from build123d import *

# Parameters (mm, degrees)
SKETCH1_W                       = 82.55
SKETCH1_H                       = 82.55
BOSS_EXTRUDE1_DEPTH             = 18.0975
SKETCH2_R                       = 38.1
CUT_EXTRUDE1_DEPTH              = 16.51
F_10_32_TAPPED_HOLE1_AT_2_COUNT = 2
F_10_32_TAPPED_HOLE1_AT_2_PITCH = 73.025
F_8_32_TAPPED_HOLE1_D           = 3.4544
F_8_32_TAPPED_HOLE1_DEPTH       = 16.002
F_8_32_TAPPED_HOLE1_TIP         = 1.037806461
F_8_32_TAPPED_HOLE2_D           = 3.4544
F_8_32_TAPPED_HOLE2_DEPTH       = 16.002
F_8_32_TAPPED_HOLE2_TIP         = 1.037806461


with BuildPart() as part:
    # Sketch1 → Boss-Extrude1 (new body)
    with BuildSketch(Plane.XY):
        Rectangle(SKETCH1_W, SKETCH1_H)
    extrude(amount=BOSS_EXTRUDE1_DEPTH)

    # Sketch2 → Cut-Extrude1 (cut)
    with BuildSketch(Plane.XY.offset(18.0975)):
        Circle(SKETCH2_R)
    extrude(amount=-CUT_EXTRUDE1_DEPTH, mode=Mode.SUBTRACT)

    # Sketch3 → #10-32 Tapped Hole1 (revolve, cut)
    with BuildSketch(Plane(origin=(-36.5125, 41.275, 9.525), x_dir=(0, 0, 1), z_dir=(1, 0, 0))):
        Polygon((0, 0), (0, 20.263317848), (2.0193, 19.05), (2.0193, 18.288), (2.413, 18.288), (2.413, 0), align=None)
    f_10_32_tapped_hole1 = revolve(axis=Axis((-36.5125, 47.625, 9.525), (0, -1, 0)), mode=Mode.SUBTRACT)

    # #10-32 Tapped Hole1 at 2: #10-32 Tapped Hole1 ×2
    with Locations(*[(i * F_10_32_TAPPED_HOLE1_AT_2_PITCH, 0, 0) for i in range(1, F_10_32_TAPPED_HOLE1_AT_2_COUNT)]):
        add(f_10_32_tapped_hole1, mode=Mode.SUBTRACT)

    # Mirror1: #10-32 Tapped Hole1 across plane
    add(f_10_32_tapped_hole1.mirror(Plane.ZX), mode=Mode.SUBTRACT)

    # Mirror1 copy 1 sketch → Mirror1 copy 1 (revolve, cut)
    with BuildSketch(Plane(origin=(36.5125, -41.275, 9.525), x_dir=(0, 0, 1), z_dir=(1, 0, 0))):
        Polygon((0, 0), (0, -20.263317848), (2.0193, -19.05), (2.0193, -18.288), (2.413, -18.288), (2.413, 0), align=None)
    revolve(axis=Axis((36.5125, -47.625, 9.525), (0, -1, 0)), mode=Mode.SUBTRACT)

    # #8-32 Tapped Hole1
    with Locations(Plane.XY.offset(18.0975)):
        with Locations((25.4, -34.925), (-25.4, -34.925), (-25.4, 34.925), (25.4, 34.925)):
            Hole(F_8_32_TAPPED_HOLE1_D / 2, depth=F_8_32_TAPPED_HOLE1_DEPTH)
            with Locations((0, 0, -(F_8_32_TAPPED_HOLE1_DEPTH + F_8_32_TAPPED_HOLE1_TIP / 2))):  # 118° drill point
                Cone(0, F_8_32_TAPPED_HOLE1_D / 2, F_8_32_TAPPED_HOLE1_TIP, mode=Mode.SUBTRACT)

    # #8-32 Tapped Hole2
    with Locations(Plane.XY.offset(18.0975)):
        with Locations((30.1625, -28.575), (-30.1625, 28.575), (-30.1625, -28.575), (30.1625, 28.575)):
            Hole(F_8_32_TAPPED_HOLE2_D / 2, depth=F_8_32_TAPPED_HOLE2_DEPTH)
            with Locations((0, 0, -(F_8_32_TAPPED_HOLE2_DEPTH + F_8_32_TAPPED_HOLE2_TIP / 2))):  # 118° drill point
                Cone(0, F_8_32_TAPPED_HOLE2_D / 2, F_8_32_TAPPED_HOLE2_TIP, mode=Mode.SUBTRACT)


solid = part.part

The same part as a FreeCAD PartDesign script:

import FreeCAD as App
import Part
import Sketcher
Q = App.Units.Quantity


def add_polygon(sketch, points):
    """Adds a closed chain of lines whose ends are joined by coincident constraints."""
    first, n = sketch.GeometryCount, len(points)
    for a, b in zip(points, points[1:] + points[:1]):
        sketch.addGeometry(Part.LineSegment(App.Vector(*a, 0), App.Vector(*b, 0)), False)
    for i in range(n):
        sketch.addConstraint(Sketcher.Constraint("Coincident", first + i, 2, first + (i + 1) % n, 1))

doc = App.newDocument("Part")
params = doc.addObject("Spreadsheet::Sheet", "Params")
for row, (alias, value) in enumerate([
    ("sketch1_width", "3.25 in"),
    ("pad1_length", "0.7125 in"),
    ("sketch2_diameter", "3 in"),
    ("pocket1_length", "0.65 in"),
    ("sketch3_width", "0.72 in"),
    ("sketch3_width2", "0.03 in"),
    ("sketch3_height", "0.095 in"),
    ("groove_angle", "360 deg"),
    ("linearpattern_pitch", "2.875 in"),
    ("sketch4_width", "0.03 in"),
    ("sketch4_width2", "0.72 in"),
    ("sketch4_height", "0.095 in"),
    ("groove2_angle", "360 deg"),
    ("sketch5_diameter", "0.136 in"),
    ("hole_diameter", "0.136 in"),
    ("hole_depth", "0.63 in"),
    ("sketch6_diameter", "0.136 in"),
    ("hole2_diameter", "0.136 in"),
    ("hole2_depth", "0.63 in"),
], start=1):
    params.set(f"A{row}", alias)
    params.set(f"B{row}", "=" + value)
    params.setAlias(f"B{row}", alias)

body = doc.addObject("PartDesign::Body", "Body")

# Sketch on XY plane
sketch1 = doc.addObject("Sketcher::SketchObject", "Sketch")
body.addObject(sketch1)
sketch1.AttachmentSupport = (doc.XY_Plane, [""])
sketch1.MapMode = "FlatFace"
add_polygon(sketch1, [(-41, 41), (-41, -41), (41, -41), (41, 41)])  # lines 0-3
sketch1.addConstraint([
    Sketcher.Constraint("Vertical", 0),
    Sketcher.Constraint("Horizontal", 1),
    Sketcher.Constraint("Vertical", 2),
    Sketcher.Constraint("Horizontal", 3),
    Sketcher.Constraint("Symmetric", 0, 2, 2, 2, -1, 1),
    Sketcher.Constraint("Equal", 3, 0),
    Sketcher.Constraint("DistanceX", 1, 1, 1, 2, Q("3.25 in")),
])
sketch1.setExpression("Constraints[10]", "Params.sketch1_width")
pad1 = doc.addObject("PartDesign::Pad", "Pad")
body.addObject(pad1)
pad1.Profile = sketch1
pad1.setExpression("Length", "Params.pad1_length")

# Sketch on XY plane
sketch2 = doc.addObject("Sketcher::SketchObject", "Sketch001")
body.addObject(sketch2)
sketch2.AttachmentSupport = (doc.XY_Plane, [""])
sketch2.MapMode = "FlatFace"
sketch2.AttachmentOffset = App.Placement(App.Vector(0, 0, 0.7125 * 25.4), App.Rotation())
sketch2.addGeometry(Part.Circle(App.Vector(0, 0, 0), App.Vector(0, 0, 1), 38), False)
sketch2.addConstraint([
    Sketcher.Constraint("Coincident", 0, 3, -1, 1),
    Sketcher.Constraint("Diameter", 0, Q("3 in")),
])
sketch2.setExpression("Constraints[1]", "Params.sketch2_diameter")
pocket1 = doc.addObject("PartDesign::Pocket", "Pocket")
body.addObject(pocket1)
pocket1.Profile = sketch2
pocket1.setExpression("Length", "Params.pocket1_length")

# Sketch on YZ plane
sketch3 = doc.addObject("Sketcher::SketchObject", "Sketch002")
body.addObject(sketch3)
sketch3.AttachmentSupport = (doc.YZ_Plane, [""])
sketch3.MapMode = "FlatFace"
sketch3.AttachmentOffset = App.Placement(App.Vector(0, 0, -1.4375 * 25.4), App.Rotation())
add_polygon(sketch3, [(21.01, 9.53), (41.27, 9.53), (41.27, 11.94), (22.99, 11.94), (22.99, 11.54), (22.23, 11.54)])  # lines 0-5
sketch3.addGeometry(Part.LineSegment(App.Vector(41.27, 9.53, 0), App.Vector(21.01, 9.53, 0)), True)  # axis
sketch3.addConstraint([
    Sketcher.Constraint("Horizontal", 0),
    Sketcher.Constraint("Vertical", 1),
    Sketcher.Constraint("Horizontal", 2),
    Sketcher.Constraint("Vertical", 3),
    Sketcher.Constraint("Horizontal", 4),
    Sketcher.Constraint("Horizontal", 6),
    Sketcher.Constraint("Coincident", 6, 1, 0, 2),
    Sketcher.Constraint("Equal", 0, 6),
    Sketcher.Constraint("Angle", 5, Q("-121 deg")),
    Sketcher.Constraint("DistanceX", 2, 2, 2, 1, Q("0.72 in")),
    Sketcher.Constraint("DistanceX", 4, 2, 4, 1, Q("0.03 in")),
    Sketcher.Constraint("DistanceY", 1, 1, 1, 2, Q("0.095 in")),
    Sketcher.Constraint("DistanceY", -1, 1, 1, 2, Q("0.47 in")),
    Sketcher.Constraint("DistanceY", 3, 2, 3, 1, Q("0.0155 in")),
    Sketcher.Constraint("DistanceX", -1, 1, 0, 2, Q("1.625 in")),
])
sketch3.setExpression("Constraints[15]", "Params.sketch3_width")
sketch3.setExpression("Constraints[16]", "Params.sketch3_width2")
sketch3.setExpression("Constraints[17]", "Params.sketch3_height")
groove = doc.addObject("PartDesign::Groove", "Groove")
body.addObject(groove)
groove.Profile = sketch3
groove.ReferenceAxis = (sketch3, ["Axis0"])
groove.setExpression("Angle", "Params.groove_angle")
doc.recompute()

linearpattern = doc.addObject("PartDesign::LinearPattern", "LinearPattern")
body.addObject(linearpattern)
linearpattern.Originals = [groove]
linearpattern.Direction = (doc.X_Axis, [""])
linearpattern.Mode = "offset"
linearpattern.setExpression("Offset", "Params.linearpattern_pitch")
linearpattern.Occurrences = 2
body.Tip = linearpattern
doc.recompute()

mirrored = doc.addObject("PartDesign::Mirrored", "Mirrored")
body.addObject(mirrored)
mirrored.Originals = [groove]
mirrored.MirrorPlane = (doc.XZ_Plane, [""])
body.Tip = mirrored

# Sketch on YZ plane
sketch4 = doc.addObject("Sketcher::SketchObject", "Sketch003")
body.addObject(sketch4)
sketch4.AttachmentSupport = (doc.YZ_Plane, [""])
sketch4.MapMode = "FlatFace"
sketch4.AttachmentOffset = App.Placement(App.Vector(0, 0, 1.4375 * 25.4), App.Rotation())
add_polygon(sketch4, [(-41.27, 9.53), (-21.01, 9.53), (-22.23, 11.54), (-22.99, 11.54), (-22.99, 11.94), (-41.27, 11.94)])  # lines 0-5
sketch4.addGeometry(Part.LineSegment(App.Vector(-21.01, 9.53, 0), App.Vector(-41.27, 9.53, 0)), True)  # axis
sketch4.addConstraint([
    Sketcher.Constraint("Horizontal", 0),
    Sketcher.Constraint("Horizontal", 2),
    Sketcher.Constraint("Vertical", 3),
    Sketcher.Constraint("Horizontal", 4),
    Sketcher.Constraint("Vertical", 5),
    Sketcher.Constraint("Horizontal", 6),
    Sketcher.Constraint("Coincident", 6, 1, 0, 2),
    Sketcher.Constraint("Vertical", 4, 2, 6, 2),
    Sketcher.Constraint("Angle", 1, Q("121 deg")),
    Sketcher.Constraint("DistanceX", 2, 2, 2, 1, Q("0.03 in")),
    Sketcher.Constraint("DistanceX", 4, 2, 4, 1, Q("0.72 in")),
    Sketcher.Constraint("DistanceY", 5, 2, 5, 1, Q("0.095 in")),
    Sketcher.Constraint("DistanceY", -1, 1, 3, 2, Q("0.47 in")),
    Sketcher.Constraint("DistanceY", 3, 1, 3, 2, Q("0.0155 in")),
    Sketcher.Constraint("DistanceX", 1, 2, -1, 1, Q("0.875 in")),
])
sketch4.setExpression("Constraints[15]", "Params.sketch4_width")
sketch4.setExpression("Constraints[16]", "Params.sketch4_width2")
sketch4.setExpression("Constraints[17]", "Params.sketch4_height")
groove2 = doc.addObject("PartDesign::Groove", "Groove001")
body.addObject(groove2)
groove2.Profile = sketch4
groove2.ReferenceAxis = (sketch4, ["Axis0"])
groove2.setExpression("Angle", "Params.groove2_angle")

# Sketch on XY plane
sketch5 = doc.addObject("Sketcher::SketchObject", "Sketch004")
body.addObject(sketch5)
sketch5.AttachmentSupport = (doc.XY_Plane, [""])
sketch5.MapMode = "FlatFace"
sketch5.AttachmentOffset = App.Placement(App.Vector(0, 0, 0.7125 * 25.4), App.Rotation())
sketch5.addGeometry([
    Part.Circle(App.Vector(25.4, -34.9, 0), App.Vector(0, 0, 1), 1.7),
    Part.Circle(App.Vector(-25.4, -34.9, 0), App.Vector(0, 0, 1), 1.7),
    Part.Circle(App.Vector(-25.4, 34.9, 0), App.Vector(0, 0, 1), 1.7),
    Part.Circle(App.Vector(25.4, 34.9, 0), App.Vector(0, 0, 1), 1.7),
], False)
sketch5.addConstraint([
    Sketcher.Constraint("Equal", 0, 1),
    Sketcher.Constraint("Equal", 1, 2),
    Sketcher.Constraint("Equal", 2, 3),
    Sketcher.Constraint("Symmetric", 0, 3, 2, 3, -1, 1),
    Sketcher.Constraint("Symmetric", 1, 3, 3, 3, -1, 1),
    Sketcher.Constraint("Symmetric", 0, 3, 1, 3, -2),
    Sketcher.Constraint("Diameter", 0, Q("0.136 in")),
    Sketcher.Constraint("DistanceX", -1, 1, 0, 3, Q("1 in")),
    Sketcher.Constraint("DistanceY", 1, 3, 2, 3, Q("2.75 in")),
])
sketch5.setExpression("Constraints[6]", "Params.sketch5_diameter")
doc.recompute()
hole = doc.addObject("PartDesign::Hole", "Hole")
body.addObject(hole)
hole.Profile = sketch5
hole.ThreadType = "None"
hole.setExpression("Diameter", "Params.hole_diameter")
hole.DepthType = "Dimension"
hole.setExpression("Depth", "Params.hole_depth")
hole.DrillPoint = "Angled"
hole.DrillPointAngle = 118

# Sketch on XY plane
sketch6 = doc.addObject("Sketcher::SketchObject", "Sketch005")
body.addObject(sketch6)
sketch6.AttachmentSupport = (doc.XY_Plane, [""])
sketch6.MapMode = "FlatFace"
sketch6.AttachmentOffset = App.Placement(App.Vector(0, 0, 0.7125 * 25.4), App.Rotation())
sketch6.addGeometry([
    Part.Circle(App.Vector(30.2, -28.6, 0), App.Vector(0, 0, 1), 1.7),
    Part.Circle(App.Vector(-30.2, 28.6, 0), App.Vector(0, 0, 1), 1.7),
    Part.Circle(App.Vector(-30.2, -28.6, 0), App.Vector(0, 0, 1), 1.7),
    Part.Circle(App.Vector(30.2, 28.6, 0), App.Vector(0, 0, 1), 1.7),
], False)
sketch6.addConstraint([
    Sketcher.Constraint("Equal", 0, 1),
    Sketcher.Constraint("Equal", 1, 2),
    Sketcher.Constraint("Equal", 2, 3),
    Sketcher.Constraint("Symmetric", 0, 3, 1, 3, -1, 1),
    Sketcher.Constraint("Symmetric", 2, 3, 3, 3, -1, 1),
    Sketcher.Constraint("Symmetric", 0, 3, 2, 3, -2),
    Sketcher.Constraint("Diameter", 0, Q("0.136 in")),
    Sketcher.Constraint("DistanceY", 0, 3, 1, 3, Q("2.25 in")),
    Sketcher.Constraint("DistanceX", -1, 1, 0, 3, Q("1.1875 in")),
])
sketch6.setExpression("Constraints[6]", "Params.sketch6_diameter")
doc.recompute()
hole2 = doc.addObject("PartDesign::Hole", "Hole001")
body.addObject(hole2)
hole2.Profile = sketch6
hole2.ThreadType = "None"
hole2.setExpression("Diameter", "Params.hole2_diameter")
hole2.DepthType = "Dimension"
hole2.setExpression("Depth", "Params.hole2_depth")
hole2.DrillPoint = "Angled"
hole2.DrillPointAngle = 118

doc.recompute()
